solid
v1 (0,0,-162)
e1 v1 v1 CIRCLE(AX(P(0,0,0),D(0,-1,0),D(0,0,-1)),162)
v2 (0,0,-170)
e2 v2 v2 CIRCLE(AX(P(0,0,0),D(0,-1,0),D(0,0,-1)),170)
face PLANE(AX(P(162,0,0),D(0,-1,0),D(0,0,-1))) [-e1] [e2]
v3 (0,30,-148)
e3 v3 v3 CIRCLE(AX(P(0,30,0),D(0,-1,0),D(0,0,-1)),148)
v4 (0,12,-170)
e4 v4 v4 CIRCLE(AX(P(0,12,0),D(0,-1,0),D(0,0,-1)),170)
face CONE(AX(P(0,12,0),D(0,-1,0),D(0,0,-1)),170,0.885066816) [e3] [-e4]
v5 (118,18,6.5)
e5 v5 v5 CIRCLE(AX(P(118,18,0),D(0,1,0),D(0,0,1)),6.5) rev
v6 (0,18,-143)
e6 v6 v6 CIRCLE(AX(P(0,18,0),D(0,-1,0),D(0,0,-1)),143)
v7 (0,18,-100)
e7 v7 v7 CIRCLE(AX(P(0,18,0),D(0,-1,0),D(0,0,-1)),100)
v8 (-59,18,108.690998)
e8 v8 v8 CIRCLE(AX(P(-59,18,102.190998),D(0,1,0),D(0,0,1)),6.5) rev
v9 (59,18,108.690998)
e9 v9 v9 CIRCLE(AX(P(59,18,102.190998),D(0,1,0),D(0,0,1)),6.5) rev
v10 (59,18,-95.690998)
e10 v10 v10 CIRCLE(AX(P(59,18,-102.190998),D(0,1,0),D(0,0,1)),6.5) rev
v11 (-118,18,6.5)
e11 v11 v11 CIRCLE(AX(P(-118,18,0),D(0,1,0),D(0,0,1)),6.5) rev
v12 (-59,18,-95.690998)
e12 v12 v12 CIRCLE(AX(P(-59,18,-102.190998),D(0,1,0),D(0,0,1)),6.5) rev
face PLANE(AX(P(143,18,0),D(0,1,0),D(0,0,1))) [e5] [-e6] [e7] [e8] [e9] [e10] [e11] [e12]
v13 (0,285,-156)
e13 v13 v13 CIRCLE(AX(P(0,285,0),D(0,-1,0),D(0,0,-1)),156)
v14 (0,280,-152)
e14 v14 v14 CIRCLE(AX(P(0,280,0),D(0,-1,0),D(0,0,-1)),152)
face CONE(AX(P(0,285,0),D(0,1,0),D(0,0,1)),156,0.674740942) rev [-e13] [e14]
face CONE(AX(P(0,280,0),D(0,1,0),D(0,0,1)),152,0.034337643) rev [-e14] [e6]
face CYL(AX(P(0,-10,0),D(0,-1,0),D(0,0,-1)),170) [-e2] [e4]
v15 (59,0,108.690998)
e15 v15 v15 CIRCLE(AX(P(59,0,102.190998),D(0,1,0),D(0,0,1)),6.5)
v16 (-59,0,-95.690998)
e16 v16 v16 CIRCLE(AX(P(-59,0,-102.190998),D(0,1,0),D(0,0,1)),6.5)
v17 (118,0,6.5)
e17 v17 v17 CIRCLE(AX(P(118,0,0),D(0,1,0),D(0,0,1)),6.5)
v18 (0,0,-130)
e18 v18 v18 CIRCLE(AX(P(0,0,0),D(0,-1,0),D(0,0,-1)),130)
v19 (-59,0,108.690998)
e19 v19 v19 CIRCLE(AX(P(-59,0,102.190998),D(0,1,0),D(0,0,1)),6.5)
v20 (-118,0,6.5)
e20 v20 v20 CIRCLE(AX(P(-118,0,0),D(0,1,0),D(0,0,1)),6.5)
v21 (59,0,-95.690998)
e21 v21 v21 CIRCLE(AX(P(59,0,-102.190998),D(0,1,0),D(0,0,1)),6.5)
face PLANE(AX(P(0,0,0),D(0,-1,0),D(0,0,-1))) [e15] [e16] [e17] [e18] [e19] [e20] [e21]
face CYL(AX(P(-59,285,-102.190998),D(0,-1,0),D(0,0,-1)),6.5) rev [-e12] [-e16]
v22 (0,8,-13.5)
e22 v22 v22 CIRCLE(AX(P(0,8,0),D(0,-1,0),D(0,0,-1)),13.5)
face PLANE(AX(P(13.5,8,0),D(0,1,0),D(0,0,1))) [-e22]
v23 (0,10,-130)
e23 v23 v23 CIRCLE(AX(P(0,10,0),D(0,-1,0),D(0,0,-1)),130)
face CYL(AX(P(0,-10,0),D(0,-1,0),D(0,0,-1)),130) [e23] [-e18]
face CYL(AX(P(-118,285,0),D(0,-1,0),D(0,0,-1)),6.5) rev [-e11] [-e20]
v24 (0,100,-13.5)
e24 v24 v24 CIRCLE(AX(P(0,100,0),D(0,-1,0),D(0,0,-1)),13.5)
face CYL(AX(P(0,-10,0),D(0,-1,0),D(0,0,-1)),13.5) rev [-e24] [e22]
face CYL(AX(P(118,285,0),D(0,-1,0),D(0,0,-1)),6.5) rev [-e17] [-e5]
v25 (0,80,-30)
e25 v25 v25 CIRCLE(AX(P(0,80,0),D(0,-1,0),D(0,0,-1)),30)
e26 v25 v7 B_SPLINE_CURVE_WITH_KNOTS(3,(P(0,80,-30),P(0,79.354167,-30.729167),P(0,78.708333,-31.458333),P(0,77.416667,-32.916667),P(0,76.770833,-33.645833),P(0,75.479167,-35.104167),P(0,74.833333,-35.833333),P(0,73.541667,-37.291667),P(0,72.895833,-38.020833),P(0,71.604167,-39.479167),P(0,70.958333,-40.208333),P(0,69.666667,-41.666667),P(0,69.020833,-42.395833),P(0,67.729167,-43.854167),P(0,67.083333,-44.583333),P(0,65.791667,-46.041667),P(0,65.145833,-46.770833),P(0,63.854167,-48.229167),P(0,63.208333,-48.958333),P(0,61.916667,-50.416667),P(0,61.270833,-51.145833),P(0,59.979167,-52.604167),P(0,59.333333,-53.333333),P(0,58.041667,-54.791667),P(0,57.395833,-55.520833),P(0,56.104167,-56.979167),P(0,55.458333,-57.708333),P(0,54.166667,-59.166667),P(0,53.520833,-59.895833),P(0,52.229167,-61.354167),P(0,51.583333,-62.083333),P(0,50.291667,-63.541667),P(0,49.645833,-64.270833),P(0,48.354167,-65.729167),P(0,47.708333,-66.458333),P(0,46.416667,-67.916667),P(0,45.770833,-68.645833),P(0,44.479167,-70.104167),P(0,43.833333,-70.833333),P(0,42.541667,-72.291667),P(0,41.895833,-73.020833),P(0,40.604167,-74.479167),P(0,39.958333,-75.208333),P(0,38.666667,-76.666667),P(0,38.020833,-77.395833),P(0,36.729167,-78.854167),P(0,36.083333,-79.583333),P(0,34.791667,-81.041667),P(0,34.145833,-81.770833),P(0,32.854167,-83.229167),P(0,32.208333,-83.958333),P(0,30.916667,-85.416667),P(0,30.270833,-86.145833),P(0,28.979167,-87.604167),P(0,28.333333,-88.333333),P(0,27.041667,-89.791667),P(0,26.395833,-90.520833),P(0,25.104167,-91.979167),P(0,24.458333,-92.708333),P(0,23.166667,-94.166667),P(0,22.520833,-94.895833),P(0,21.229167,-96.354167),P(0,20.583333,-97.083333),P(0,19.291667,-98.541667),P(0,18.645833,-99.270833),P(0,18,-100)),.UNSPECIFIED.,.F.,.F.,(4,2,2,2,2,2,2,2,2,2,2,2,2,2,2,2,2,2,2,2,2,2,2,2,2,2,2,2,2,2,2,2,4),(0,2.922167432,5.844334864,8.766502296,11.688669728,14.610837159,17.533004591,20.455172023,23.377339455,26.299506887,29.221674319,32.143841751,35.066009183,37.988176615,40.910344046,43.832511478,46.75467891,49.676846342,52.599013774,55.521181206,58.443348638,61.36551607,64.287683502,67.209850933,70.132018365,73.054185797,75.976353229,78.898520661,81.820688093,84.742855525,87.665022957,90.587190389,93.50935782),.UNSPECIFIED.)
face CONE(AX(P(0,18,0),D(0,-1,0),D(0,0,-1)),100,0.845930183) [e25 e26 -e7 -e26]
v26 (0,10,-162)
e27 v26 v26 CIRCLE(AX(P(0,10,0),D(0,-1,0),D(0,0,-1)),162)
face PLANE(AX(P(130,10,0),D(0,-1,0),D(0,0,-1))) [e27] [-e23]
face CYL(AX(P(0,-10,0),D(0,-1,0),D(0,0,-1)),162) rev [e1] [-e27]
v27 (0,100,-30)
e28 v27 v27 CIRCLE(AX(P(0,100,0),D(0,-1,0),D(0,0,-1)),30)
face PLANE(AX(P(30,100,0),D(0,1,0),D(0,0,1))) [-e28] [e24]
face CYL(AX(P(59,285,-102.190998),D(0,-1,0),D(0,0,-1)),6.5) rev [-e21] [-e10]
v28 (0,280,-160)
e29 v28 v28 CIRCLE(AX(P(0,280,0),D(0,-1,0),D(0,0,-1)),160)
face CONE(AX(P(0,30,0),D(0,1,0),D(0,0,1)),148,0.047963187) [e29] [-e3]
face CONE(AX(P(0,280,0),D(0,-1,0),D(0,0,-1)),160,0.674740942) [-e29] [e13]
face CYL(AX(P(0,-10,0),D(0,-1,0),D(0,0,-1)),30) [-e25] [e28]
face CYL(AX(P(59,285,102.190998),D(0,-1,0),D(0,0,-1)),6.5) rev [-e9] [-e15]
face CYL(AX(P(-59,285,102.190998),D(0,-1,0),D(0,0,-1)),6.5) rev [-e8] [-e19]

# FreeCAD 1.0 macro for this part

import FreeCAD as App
import Part
import Sketcher

V = App.Vector

doc = App.newDocument("Part")
params = doc.addObject("Spreadsheet::Sheet", "Params")
for row, (alias, value) in enumerate([
    ("sketch1_width", "130 mm"),
    ("sketch1_width2", "32 mm"),
    ("sketch1_width3", "8 mm"),
    ("sketch1_width4", "43 mm"),
    ("sketch1_height", "10 mm"),
    ("revolution_angle", "360 deg"),
    ("sketch2_diameter", "13 mm"),
], start=1):
    params.set(f"A{row}", alias)
    params.set(f"B{row}", "=" + value)
    params.setAlias(f"B{row}", alias)

body = doc.addObject("PartDesign::Body", "Body")

sketch1 = doc.addObject("Sketcher::SketchObject", "Sketch")
body.addObject(sketch1)
sketch1.AttachmentSupport = (doc.XY_Plane, [""])
sketch1.MapMode = "FlatFace"
sketch1.addGeometry([
    Part.LineSegment(V(0, 0, 0), V(130, 0, 0)),
    Part.LineSegment(V(130, 0, 0), V(130, 10, 0)),
    Part.LineSegment(V(130, 10, 0), V(162, 10, 0)),
    Part.LineSegment(V(162, 10, 0), V(162, 0, 0)),
    Part.LineSegment(V(162, 0, 0), V(170, 0, 0)),
    Part.LineSegment(V(170, 0, 0), V(170, 12, 0)),
    Part.LineSegment(V(170, 12, 0), V(148, 30, 0)),
    Part.LineSegment(V(148, 30, 0), V(160, 280, 0)),
    Part.LineSegment(V(160, 280, 0), V(156, 285, 0)),
    Part.LineSegment(V(156, 285, 0), V(152, 280, 0)),
    Part.LineSegment(V(152, 280, 0), V(143, 18, 0)),
    Part.LineSegment(V(143, 18, 0), V(100, 18, 0)),
    Part.LineSegment(V(100, 18, 0), V(30, 80, 0)),
    Part.LineSegment(V(30, 80, 0), V(30, 100, 0)),
    Part.LineSegment(V(30, 100, 0), V(14, 100, 0)),
    Part.LineSegment(V(14, 100, 0), V(14, 8, 0)),
    Part.LineSegment(V(14, 8, 0), V(0, 8, 0)),
    Part.LineSegment(V(0, 8, 0), V(0, 0, 0)),
], False)
sketch1.addConstraint([
    Sketcher.Constraint("Coincident", 0, 2, 1, 1),
    Sketcher.Constraint("Coincident", 1, 2, 2, 1),
    Sketcher.Constraint("Coincident", 2, 2, 3, 1),
    Sketcher.Constraint("Coincident", 3, 2, 4, 1),
    Sketcher.Constraint("Coincident", 4, 2, 5, 1),
    Sketcher.Constraint("Coincident", 5, 2, 6, 1),
    Sketcher.Constraint("Coincident", 6, 2, 7, 1),
    Sketcher.Constraint("Coincident", 7, 2, 8, 1),
    Sketcher.Constraint("Coincident", 8, 2, 9, 1),
    Sketcher.Constraint("Coincident", 9, 2, 10, 1),
    Sketcher.Constraint("Coincident", 10, 2, 11, 1),
    Sketcher.Constraint("Coincident", 11, 2, 12, 1),
    Sketcher.Constraint("Coincident", 12, 2, 13, 1),
    Sketcher.Constraint("Coincident", 13, 2, 14, 1),
    Sketcher.Constraint("Coincident", 14, 2, 15, 1),
    Sketcher.Constraint("Coincident", 15, 2, 16, 1),
    Sketcher.Constraint("Coincident", 16, 2, 17, 1),
    Sketcher.Constraint("Coincident", 17, 2, 0, 1),
    Sketcher.Constraint("Horizontal", 0),
    Sketcher.Constraint("Vertical", 1),
    Sketcher.Constraint("Horizontal", 2),
    Sketcher.Constraint("Vertical", 3),
    Sketcher.Constraint("Horizontal", 4),
    Sketcher.Constraint("Vertical", 5),
    Sketcher.Constraint("Horizontal", 11),
    Sketcher.Constraint("Vertical", 13),
    Sketcher.Constraint("Horizontal", 14),
    Sketcher.Constraint("Vertical", 15),
    Sketcher.Constraint("Horizontal", 16),
    Sketcher.Constraint("Vertical", 17),
    Sketcher.Constraint("Coincident", 17, 2, -1, 1),
    Sketcher.Constraint("PointOnObject", 3, 2, -1),
    Sketcher.Constraint("Horizontal", 7, 2, 9, 2),
    Sketcher.Constraint("Equal", 4, 17),
    Sketcher.Constraint("Equal", 8, 9),
    Sketcher.Constraint("DistanceX", 0, 1, 0, 2, 130.0),
    Sketcher.Constraint("DistanceX", 2, 1, 2, 2, 32.0),
    Sketcher.Constraint("DistanceX", 4, 1, 4, 2, 8.0),
    Sketcher.Constraint("DistanceX", 11, 2, 11, 1, 43.0),
    Sketcher.Constraint("DistanceY", 1, 1, 1, 2, 10.0),
    Sketcher.Constraint("DistanceY", 5, 1, 5, 2, 12.0),
    Sketcher.Constraint("DistanceY", 13, 1, 13, 2, 20.0),
    Sketcher.Constraint("DistanceY", 15, 2, 15, 1, 92.0),
    Sketcher.Constraint("DistanceX", 14, 2, 14, 1, 16.5),
    Sketcher.Constraint("DistanceX", 16, 2, 16, 1, 13.5),
    Sketcher.Constraint("DistanceX", -1, 1, 6, 2, 148.0),
    Sketcher.Constraint("DistanceY", -1, 1, 6, 2, 30.0),
    Sketcher.Constraint("DistanceX", -1, 1, 7, 2, 160.0),
    Sketcher.Constraint("DistanceY", -1, 1, 7, 2, 280.0),
    Sketcher.Constraint("DistanceX", -1, 1, 8, 2, 156.0),
    Sketcher.Constraint("DistanceY", -1, 1, 8, 2, 285.0),
    Sketcher.Constraint("DistanceX", -1, 1, 10, 2, 143.0),
    Sketcher.Constraint("DistanceY", -1, 1, 10, 2, 18.0),
])
sketch1.setExpression("Constraints[35]", "Params.sketch1_width")
sketch1.setExpression("Constraints[36]", "Params.sketch1_width2")
sketch1.setExpression("Constraints[37]", "Params.sketch1_width3")
sketch1.setExpression("Constraints[38]", "Params.sketch1_width4")
sketch1.setExpression("Constraints[39]", "Params.sketch1_height")
revolution = doc.addObject("PartDesign::Revolution", "Revolution")
body.addObject(revolution)
revolution.Profile = sketch1
revolution.ReferenceAxis = (sketch1, ["V_Axis"])
revolution.setExpression("Angle", "Params.revolution_angle")

sketch2 = doc.addObject("Sketcher::SketchObject", "Sketch001")
body.addObject(sketch2)
sketch2.AttachmentSupport = (doc.XZ_Plane, [""])
sketch2.MapMode = "FlatFace"
sketch2.addGeometry([
    Part.Circle(V(118, 0, 0), V(0, 0, 1), 6),
    Part.Circle(V(59, -102, 0), V(0, 0, 1), 6),
    Part.Circle(V(-59, -102, 0), V(0, 0, 1), 6),
    Part.Circle(V(-118, 0, 0), V(0, 0, 1), 6),
    Part.Circle(V(-59, 102, 0), V(0, 0, 1), 6),
    Part.Circle(V(59, 102, 0), V(0, 0, 1), 6),
], False)
sketch2.addConstraint([
    Sketcher.Constraint("Equal", 0, 1),
    Sketcher.Constraint("Equal", 1, 2),
    Sketcher.Constraint("Equal", 2, 3),
    Sketcher.Constraint("Equal", 3, 4),
    Sketcher.Constraint("Equal", 4, 5),
    Sketcher.Constraint("Symmetric", 0, 3, 3, 3, -1, 1),
    Sketcher.Constraint("Symmetric", 1, 3, 4, 3, -1, 1),
    Sketcher.Constraint("Symmetric", 2, 3, 5, 3, -1, 1),
    Sketcher.Constraint("Symmetric", 1, 3, 2, 3, -2),
    Sketcher.Constraint("PointOnObject", 0, 3, -1),
    Sketcher.Constraint("Diameter", 0, 13.0),
    Sketcher.Constraint("DistanceX", -1, 1, 0, 3, 118.0),
    Sketcher.Constraint("DistanceX", -1, 1, 1, 3, 59.0),
    Sketcher.Constraint("DistanceY", 1, 3, -1, 1, 102.190998),
])
sketch2.setExpression("Constraints[10]", "Params.sketch2_diameter")
pocket1 = doc.addObject("PartDesign::Pocket", "Pocket")
body.addObject(pocket1)
pocket1.Profile = sketch2
pocket1.Type = "ThroughAll"

doc.recompute()
